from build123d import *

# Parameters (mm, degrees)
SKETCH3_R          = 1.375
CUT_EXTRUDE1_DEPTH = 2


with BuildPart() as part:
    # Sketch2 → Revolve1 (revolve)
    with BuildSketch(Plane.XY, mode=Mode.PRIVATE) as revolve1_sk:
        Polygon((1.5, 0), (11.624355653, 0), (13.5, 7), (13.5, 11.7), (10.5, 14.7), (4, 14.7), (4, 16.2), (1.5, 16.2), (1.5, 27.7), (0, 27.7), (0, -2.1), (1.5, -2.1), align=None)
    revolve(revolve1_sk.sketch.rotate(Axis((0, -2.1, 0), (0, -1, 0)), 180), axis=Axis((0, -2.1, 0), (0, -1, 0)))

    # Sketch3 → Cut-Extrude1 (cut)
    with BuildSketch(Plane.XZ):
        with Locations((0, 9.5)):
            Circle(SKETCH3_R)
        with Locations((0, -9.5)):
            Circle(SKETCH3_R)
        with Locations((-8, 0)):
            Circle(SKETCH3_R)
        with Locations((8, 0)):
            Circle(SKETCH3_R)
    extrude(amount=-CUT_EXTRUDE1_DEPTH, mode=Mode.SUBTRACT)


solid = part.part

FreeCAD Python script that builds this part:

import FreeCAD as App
import Part
import Sketcher
from FreeCAD import Vector
Q = App.Units.Quantity

doc = App.newDocument("Part")
body = doc.addObject("PartDesign::Body", "Body")

# Sketch on XY plane
sketch1 = body.newObject("Sketcher::SketchObject", "Sketch")
sketch1.AttachmentSupport = (doc.getObject("XY_Plane"), [""])
sketch1.MapMode = "FlatFace"
sketch1.addGeometry([
    Part.LineSegment(Vector(1.5, 0, 0), Vector(11.6, 0, 0)),  # 0
    Part.LineSegment(Vector(11.6, 0, 0), Vector(13.5, 7, 0)),  # 1
    Part.LineSegment(Vector(13.5, 7, 0), Vector(13.5, 11.7, 0)),  # 2
    Part.LineSegment(Vector(13.5, 11.7, 0), Vector(10.5, 14.7, 0)),  # 3
    Part.LineSegment(Vector(10.5, 14.7, 0), Vector(4, 14.7, 0)),  # 4
    Part.LineSegment(Vector(4, 14.7, 0), Vector(4, 16.2, 0)),  # 5
    Part.LineSegment(Vector(4, 16.2, 0), Vector(1.5, 16.2, 0)),  # 6
    Part.LineSegment(Vector(1.5, 16.2, 0), Vector(1.5, 27.7, 0)),  # 7
    Part.LineSegment(Vector(1.5, 27.7, 0), Vector(0, 27.7, 0)),  # 8
    Part.LineSegment(Vector(0, 27.7, 0), Vector(0, -2.1, 0)),  # 9
    Part.LineSegment(Vector(0, -2.1, 0), Vector(1.5, -2.1, 0)),  # 10
    Part.LineSegment(Vector(1.5, -2.1, 0), Vector(1.5, 0, 0)),  # 11
], False)
sketch1.addConstraint([
    Sketcher.Constraint("Coincident", 0, 2, 1, 1),
    Sketcher.Constraint("Coincident", 1, 2, 2, 1),
    Sketcher.Constraint("Coincident", 2, 2, 3, 1),
    Sketcher.Constraint("Coincident", 3, 2, 4, 1),
    Sketcher.Constraint("Coincident", 4, 2, 5, 1),
    Sketcher.Constraint("Coincident", 5, 2, 6, 1),
    Sketcher.Constraint("Coincident", 6, 2, 7, 1),
    Sketcher.Constraint("Coincident", 7, 2, 8, 1),
    Sketcher.Constraint("Coincident", 8, 2, 9, 1),
    Sketcher.Constraint("Coincident", 9, 2, 10, 1),
    Sketcher.Constraint("Coincident", 10, 2, 11, 1),
    Sketcher.Constraint("Coincident", 11, 2, 0, 1),
    Sketcher.Constraint("Horizontal", 0),
    Sketcher.Constraint("Vertical", 2),
    Sketcher.Constraint("Horizontal", 4),
    Sketcher.Constraint("Vertical", 5),
    Sketcher.Constraint("Horizontal", 6),
    Sketcher.Constraint("Vertical", 7),
    Sketcher.Constraint("Horizontal", 8),
    Sketcher.Constraint("Vertical", 9),
    Sketcher.Constraint("Horizontal", 10),
    Sketcher.Constraint("Vertical", 11),
    Sketcher.Constraint("PointOnObject", 0, 2, -1),
    Sketcher.Constraint("PointOnObject", 8, 2, -2),
    Sketcher.Constraint("Vertical", 7, 2, 10, 2),
    Sketcher.Constraint("Equal", 10, 5),
    Sketcher.Constraint("Angle", 1, Q("75 deg")),
    Sketcher.Constraint("Angle", 3, Q("135 deg")),
    Sketcher.Constraint("DistanceX", 4, 2, 4, 1, 6.5),
    Sketcher.Constraint("DistanceX", 6, 2, 6, 1, 2.5),
    Sketcher.Constraint("DistanceX", 8, 2, 8, 1, 1.5),
    Sketcher.Constraint("DistanceY", 2, 1, 2, 2, 4.7),
    Sketcher.Constraint("DistanceY", 7, 1, 7, 2, 11.5),
    Sketcher.Constraint("DistanceY", 9, 2, 9, 1, 29.8),
    Sketcher.Constraint("DistanceY", 11, 1, 11, 2, 2.1),
    Sketcher.Constraint("DistanceY", -1, 1, 1, 2, 7.0),
])
revolution = body.newObject("PartDesign::Revolution", "Revolution")
revolution.Profile = sketch1
revolution.ReferenceAxis = (sketch1, ["V_Axis"])
revolution.Angle = 360

# Sketch on XZ plane
sketch2 = body.newObject("Sketcher::SketchObject", "Sketch001")
sketch2.AttachmentSupport = (doc.getObject("XZ_Plane"), [""])
sketch2.MapMode = "FlatFace"
sketch2.addGeometry([
    Part.Circle(Vector(0, 9.5, 0), Vector(0, 0, 1), 1.4),
    Part.Circle(Vector(0, -9.5, 0), Vector(0, 0, 1), 1.4),
    Part.Circle(Vector(-8, 0, 0), Vector(0, 0, 1), 1.4),
    Part.Circle(Vector(8, 0, 0), Vector(0, 0, 1), 1.4),
], False)
sketch2.addConstraint([
    Sketcher.Constraint("Equal", 0, 1),
    Sketcher.Constraint("Equal", 1, 2),
    Sketcher.Constraint("Equal", 2, 3),
    Sketcher.Constraint("Symmetric", 0, 3, 1, 3, -1, 1),
    Sketcher.Constraint("Symmetric", 2, 3, 3, 3, -1, 1),
    Sketcher.Constraint("PointOnObject", 0, 3, -2),
    Sketcher.Constraint("PointOnObject", 2, 3, -1),
    Sketcher.Constraint("Diameter", 0, 2.75),
    Sketcher.Constraint("DistanceX", 2, 3, -1, 1, 8.0),
    Sketcher.Constraint("DistanceY", 1, 3, 0, 3, 19.0),
])
pocket1 = body.newObject("PartDesign::Pocket", "Pocket")
pocket1.Profile = sketch2
pocket1.Length = 2

doc.recompute()
